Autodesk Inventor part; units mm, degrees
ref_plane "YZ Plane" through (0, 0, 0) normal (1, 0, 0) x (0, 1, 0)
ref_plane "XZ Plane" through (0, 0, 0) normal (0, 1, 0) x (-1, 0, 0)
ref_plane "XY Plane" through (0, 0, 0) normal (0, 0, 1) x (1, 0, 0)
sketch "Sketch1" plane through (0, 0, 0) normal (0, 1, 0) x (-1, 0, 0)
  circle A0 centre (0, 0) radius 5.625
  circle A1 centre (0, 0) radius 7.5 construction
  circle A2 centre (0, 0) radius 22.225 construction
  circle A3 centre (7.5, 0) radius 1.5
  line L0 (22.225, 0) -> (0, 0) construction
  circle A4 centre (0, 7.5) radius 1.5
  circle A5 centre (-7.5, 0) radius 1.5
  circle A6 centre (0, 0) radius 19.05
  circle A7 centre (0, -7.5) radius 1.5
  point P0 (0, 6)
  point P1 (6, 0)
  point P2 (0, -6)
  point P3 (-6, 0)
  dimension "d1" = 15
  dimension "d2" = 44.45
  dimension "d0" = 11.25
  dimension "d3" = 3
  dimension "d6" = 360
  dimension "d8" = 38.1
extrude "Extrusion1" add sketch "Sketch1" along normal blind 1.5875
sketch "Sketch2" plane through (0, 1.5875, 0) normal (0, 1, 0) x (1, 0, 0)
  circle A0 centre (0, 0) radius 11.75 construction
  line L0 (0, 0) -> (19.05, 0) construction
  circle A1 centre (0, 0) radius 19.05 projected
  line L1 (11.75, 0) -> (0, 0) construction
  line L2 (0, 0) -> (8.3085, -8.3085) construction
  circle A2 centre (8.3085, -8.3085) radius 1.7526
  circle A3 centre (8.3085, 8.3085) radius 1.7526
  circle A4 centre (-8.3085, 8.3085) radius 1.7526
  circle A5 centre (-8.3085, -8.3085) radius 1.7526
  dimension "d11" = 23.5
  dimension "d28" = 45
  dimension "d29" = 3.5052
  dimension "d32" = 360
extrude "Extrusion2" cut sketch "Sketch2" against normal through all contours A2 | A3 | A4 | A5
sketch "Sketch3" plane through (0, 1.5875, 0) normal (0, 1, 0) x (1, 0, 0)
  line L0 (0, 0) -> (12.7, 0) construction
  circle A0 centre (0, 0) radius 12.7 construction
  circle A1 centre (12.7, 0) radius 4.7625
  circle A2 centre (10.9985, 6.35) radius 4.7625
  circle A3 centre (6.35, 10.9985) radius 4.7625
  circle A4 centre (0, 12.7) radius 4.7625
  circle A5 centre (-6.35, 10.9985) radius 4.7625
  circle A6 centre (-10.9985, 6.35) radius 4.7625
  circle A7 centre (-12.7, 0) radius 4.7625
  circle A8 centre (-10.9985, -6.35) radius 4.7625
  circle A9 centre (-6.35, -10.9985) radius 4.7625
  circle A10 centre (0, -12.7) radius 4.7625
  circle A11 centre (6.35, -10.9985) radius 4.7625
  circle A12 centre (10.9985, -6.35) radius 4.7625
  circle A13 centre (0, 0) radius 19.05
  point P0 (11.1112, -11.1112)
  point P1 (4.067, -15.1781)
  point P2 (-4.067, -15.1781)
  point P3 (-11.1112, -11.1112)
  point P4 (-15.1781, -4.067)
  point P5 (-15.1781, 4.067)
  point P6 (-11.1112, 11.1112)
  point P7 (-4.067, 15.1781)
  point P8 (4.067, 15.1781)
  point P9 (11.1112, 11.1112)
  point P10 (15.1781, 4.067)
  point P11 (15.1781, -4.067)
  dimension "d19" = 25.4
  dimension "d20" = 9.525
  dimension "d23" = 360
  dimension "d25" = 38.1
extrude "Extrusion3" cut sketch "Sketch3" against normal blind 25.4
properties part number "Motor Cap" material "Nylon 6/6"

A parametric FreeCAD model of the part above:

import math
import FreeCAD as App
import Part
import Sketcher

V = App.Vector
Q = App.Units.Quantity

doc = App.newDocument("Part")
body = doc.addObject("PartDesign::Body", "Body")

sketch1 = body.newObject("Sketcher::SketchObject", "Sketch")
sketch1.AttachmentSupport = (doc.getObject("XZ_Plane"), [""])
sketch1.MapMode = "FlatFace"
sketch1.addGeometry(Part.Circle(V(0, 0, 0), V(0, 0, 1), 19.1), False)
sketch1.addGeometry(Part.Circle(V(0, -7.5, 0), V(0, 0, 1), 1.5), False)
sketch1.addGeometry(Part.Circle(V(7.5, 0, 0), V(0, 0, 1), 1.5), False)
sketch1.addGeometry(Part.Circle(V(0, 0, 0), V(0, 0, 1), 5.6), False)
sketch1.addGeometry(Part.Circle(V(-7.5, 0, 0), V(0, 0, 1), 1.5), False)
sketch1.addGeometry(Part.Circle(V(0, 7.5, 0), V(0, 0, 1), 1.5), False)
sketch1.addConstraint(Sketcher.Constraint("Coincident", 0, 3, -1, 1))
sketch1.addConstraint(Sketcher.Constraint("Coincident", 3, 3, -1, 1))
sketch1.addConstraint(Sketcher.Constraint("Equal", 1, 2))
sketch1.addConstraint(Sketcher.Constraint("Equal", 2, 4))
sketch1.addConstraint(Sketcher.Constraint("Equal", 4, 5))
sketch1.addConstraint(Sketcher.Constraint("Symmetric", 2, 3, 4, 3, -1, 1))
sketch1.addConstraint(Sketcher.Constraint("Symmetric", 1, 3, 5, 3, -1, 1))
sketch1.addConstraint(Sketcher.Constraint("PointOnObject", 1, 3, -2))
sketch1.addConstraint(Sketcher.Constraint("PointOnObject", 2, 3, -1))
sketch1.addConstraint(Sketcher.Constraint("Diameter", 0, Q("1.5 in")))
sketch1.addConstraint(Sketcher.Constraint("Diameter", 1, Q("0.1181 in")))
sketch1.addConstraint(Sketcher.Constraint("Diameter", 3, 11.25))
sketch1.addConstraint(Sketcher.Constraint("DistanceX", 4, 3, 2, 3, 15.0))
sketch1.addConstraint(Sketcher.Constraint("DistanceY", 1, 3, 5, 3, 15.0))
pad1 = body.newObject("PartDesign::Pad", "Pad")
pad1.Profile = sketch1
pad1.Length = Q("0.0625 in")
pad1.Reversed = True

sketch2 = body.newObject("Sketcher::SketchObject", "Sketch001")
sketch2.AttachmentSupport = (doc.getObject("XZ_Plane"), [""])
sketch2.MapMode = "FlatFace"
sketch2.AttachmentOffset = App.Placement(V(0, 0, -0.0625 * 25.4), App.Rotation())
sketch2.addGeometry(Part.Circle(V(8.3, 8.3, 0), V(0, 0, 1), 1.8), False)
sketch2.addGeometry(Part.Circle(V(8.3, -8.3, 0), V(0, 0, 1), 1.8), False)
sketch2.addGeometry(Part.Circle(V(-8.3, -8.3, 0), V(0, 0, 1), 1.8), False)
sketch2.addGeometry(Part.Circle(V(-8.3, 8.3, 0), V(0, 0, 1), 1.8), False)
sketch2.addConstraint(Sketcher.Constraint("Equal", 0, 1))
sketch2.addConstraint(Sketcher.Constraint("Equal", 1, 2))
sketch2.addConstraint(Sketcher.Constraint("Equal", 2, 3))
sketch2.addConstraint(Sketcher.Constraint("Symmetric", 0, 3, 2, 3, -1, 1))
sketch2.addConstraint(Sketcher.Constraint("Symmetric", 1, 3, 3, 3, -1, 1))
sketch2.addConstraint(Sketcher.Constraint("Symmetric", 1, 3, 2, 3, -2))
sketch2.addConstraint(Sketcher.Constraint("Diameter", 0, Q("0.138 in")))
sketch2.addConstraint(Sketcher.Constraint("DistanceX", -1, 1, 0, 3, Q("0.3271 in")))
sketch2.addConstraint(Sketcher.Constraint("DistanceY", -1, 1, 0, 3, Q("0.3271 in")))
pocket1 = body.newObject("PartDesign::Pocket", "Pocket")
pocket1.Profile = sketch2
pocket1.Type = "ThroughAll"
pocket1.Reversed = True

sketch3 = body.newObject("Sketcher::SketchObject", "Sketch002")
sketch3.AttachmentSupport = (doc.getObject("XZ_Plane"), [""])
sketch3.MapMode = "FlatFace"
sketch3.AttachmentOffset = App.Placement(V(0, 0, -0.0625 * 25.4), App.Rotation())
sketch3.addGeometry(Part.Circle(V(0, 0, 0), V(0, 0, 1), 19.1), False)
sketch3.addGeometry(Part.ArcOfCircle(Part.Circle(V(12.7, 0, 0), V(0, 0, 1), 4.8), math.radians(-59), math.radians(59)), False)
sketch3.addGeometry(Part.ArcOfCircle(Part.Circle(V(11, 6.3, 0), V(0, 0, 1), 4.8), math.radians(-29), math.radians(89)), False)
sketch3.addGeometry(Part.ArcOfCircle(Part.Circle(V(6.3, 11, 0), V(0, 0, 1), 4.8), math.radians(1), math.radians(119)), False)
sketch3.addGeometry(Part.ArcOfCircle(Part.Circle(V(0, 12.7, 0), V(0, 0, 1), 4.8), math.radians(31), math.radians(149)), False)
sketch3.addGeometry(Part.ArcOfCircle(Part.Circle(V(-6.3, 11, 0), V(0, 0, 1), 4.8), math.radians(61), math.radians(179)), False)
sketch3.addGeometry(Part.ArcOfCircle(Part.Circle(V(-11, 6.3, 0), V(0, 0, 1), 4.8), math.radians(91), math.radians(209)), False)
sketch3.addGeometry(Part.ArcOfCircle(Part.Circle(V(-12.7, 0, 0), V(0, 0, 1), 4.8), math.radians(121), math.radians(239)), False)
sketch3.addGeometry(Part.ArcOfCircle(Part.Circle(V(-11, -6.3, 0), V(0, 0, 1), 4.8), math.radians(151), math.radians(269)), False)
sketch3.addGeometry(Part.ArcOfCircle(Part.Circle(V(-6.3, -11, 0), V(0, 0, 1), 4.8), math.radians(-179), math.radians(-61)), False)
sketch3.addGeometry(Part.ArcOfCircle(Part.Circle(V(0, -12.7, 0), V(0, 0, 1), 4.8), math.radians(-149), math.radians(-31)), False)
sketch3.addGeometry(Part.ArcOfCircle(Part.Circle(V(6.3, -11, 0), V(0, 0, 1), 4.8), math.radians(-119), math.radians(-1)), False)
sketch3.addGeometry(Part.ArcOfCircle(Part.Circle(V(11, -6.3, 0), V(0, 0, 1), 4.8), math.radians(-89), math.radians(29)), False)
sketch3.addConstraint(Sketcher.Constraint("Coincident", 1, 2, 2, 1))
sketch3.addConstraint(Sketcher.Constraint("Coincident", 2, 2, 3, 1))
sketch3.addConstraint(Sketcher.Constraint("Coincident", 3, 2, 4, 1))
sketch3.addConstraint(Sketcher.Constraint("Coincident", 4, 2, 5, 1))
sketch3.addConstraint(Sketcher.Constraint("Coincident", 5, 2, 6, 1))
sketch3.addConstraint(Sketcher.Constraint("Coincident", 6, 2, 7, 1))
sketch3.addConstraint(Sketcher.Constraint("Coincident", 7, 2, 8, 1))
sketch3.addConstraint(Sketcher.Constraint("Coincident", 8, 2, 9, 1))
sketch3.addConstraint(Sketcher.Constraint("Coincident", 9, 2, 10, 1))
sketch3.addConstraint(Sketcher.Constraint("Coincident", 10, 2, 11, 1))
sketch3.addConstraint(Sketcher.Constraint("Coincident", 11, 2, 12, 1))
sketch3.addConstraint(Sketcher.Constraint("Coincident", 12, 2, 1, 1))
sketch3.addConstraint(Sketcher.Constraint("Coincident", 0, 3, -1, 1))
sketch3.addConstraint(Sketcher.Constraint("Equal", 1, 2))
sketch3.addConstraint(Sketcher.Constraint("Equal", 2, 3))
sketch3.addConstraint(Sketcher.Constraint("Equal", 3, 4))
sketch3.addConstraint(Sketcher.Constraint("Equal", 4, 5))
sketch3.addConstraint(Sketcher.Constraint("Equal", 5, 6))
sketch3.addConstraint(Sketcher.Constraint("Equal", 6, 7))
sketch3.addConstraint(Sketcher.Constraint("Equal", 7, 8))
sketch3.addConstraint(Sketcher.Constraint("Equal", 8, 9))
sketch3.addConstraint(Sketcher.Constraint("Equal", 9, 10))
sketch3.addConstraint(Sketcher.Constraint("Equal", 10, 11))
sketch3.addConstraint(Sketcher.Constraint("Equal", 11, 12))
sketch3.addConstraint(Sketcher.Constraint("Symmetric", 1, 3, 7, 3, -1, 1))
sketch3.addConstraint(Sketcher.Constraint("Symmetric", 2, 3, 8, 3, -1, 1))
sketch3.addConstraint(Sketcher.Constraint("Symmetric", 3, 3, 9, 3, -1, 1))
sketch3.addConstraint(Sketcher.Constraint("Symmetric", 4, 3, 10, 3, -1, 1))
sketch3.addConstraint(Sketcher.Constraint("Symmetric", 5, 3, 11, 3, -1, 1))
sketch3.addConstraint(Sketcher.Constraint("Symmetric", 6, 3, 12, 3, -1, 1))
sketch3.addConstraint(Sketcher.Constraint("Symmetric", 3, 3, 5, 3, -2))
sketch3.addConstraint(Sketcher.Constraint("Symmetric", 2, 3, 6, 3, -2))
sketch3.addConstraint(Sketcher.Constraint("PointOnObject", 1, 3, -1))
sketch3.addConstraint(Sketcher.Constraint("PointOnObject", 4, 3, -2))
sketch3.addConstraint(Sketcher.Constraint("Diameter", 0, Q("1.5 in")))
sketch3.addConstraint(Sketcher.Constraint("Radius", 1, Q("0.1875 in")))
sketch3.addConstraint(Sketcher.Constraint("DistanceX", -1, 1, 1, 3, Q("0.5 in")))
sketch3.addConstraint(Sketcher.Constraint("DistanceY", -1, 1, 4, 3, Q("0.5 in")))
sketch3.addConstraint(Sketcher.Constraint("DistanceX", 5, 3, 3, 3, Q("0.5 in")))
sketch3.addConstraint(Sketcher.Constraint("DistanceY", 8, 3, 6, 3, Q("0.5 in")))
sketch3.addConstraint(Sketcher.Constraint("DistanceX", -1, 1, 2, 3, Q("0.433 in")))
sketch3.addConstraint(Sketcher.Constraint("DistanceY", -1, 1, 3, 3, Q("0.433 in")))
pocket2 = body.newObject("PartDesign::Pocket", "Pocket001")
pocket2.Profile = sketch3
pocket2.Length = Q("1 in")
pocket2.Reversed = True

doc.recompute()
